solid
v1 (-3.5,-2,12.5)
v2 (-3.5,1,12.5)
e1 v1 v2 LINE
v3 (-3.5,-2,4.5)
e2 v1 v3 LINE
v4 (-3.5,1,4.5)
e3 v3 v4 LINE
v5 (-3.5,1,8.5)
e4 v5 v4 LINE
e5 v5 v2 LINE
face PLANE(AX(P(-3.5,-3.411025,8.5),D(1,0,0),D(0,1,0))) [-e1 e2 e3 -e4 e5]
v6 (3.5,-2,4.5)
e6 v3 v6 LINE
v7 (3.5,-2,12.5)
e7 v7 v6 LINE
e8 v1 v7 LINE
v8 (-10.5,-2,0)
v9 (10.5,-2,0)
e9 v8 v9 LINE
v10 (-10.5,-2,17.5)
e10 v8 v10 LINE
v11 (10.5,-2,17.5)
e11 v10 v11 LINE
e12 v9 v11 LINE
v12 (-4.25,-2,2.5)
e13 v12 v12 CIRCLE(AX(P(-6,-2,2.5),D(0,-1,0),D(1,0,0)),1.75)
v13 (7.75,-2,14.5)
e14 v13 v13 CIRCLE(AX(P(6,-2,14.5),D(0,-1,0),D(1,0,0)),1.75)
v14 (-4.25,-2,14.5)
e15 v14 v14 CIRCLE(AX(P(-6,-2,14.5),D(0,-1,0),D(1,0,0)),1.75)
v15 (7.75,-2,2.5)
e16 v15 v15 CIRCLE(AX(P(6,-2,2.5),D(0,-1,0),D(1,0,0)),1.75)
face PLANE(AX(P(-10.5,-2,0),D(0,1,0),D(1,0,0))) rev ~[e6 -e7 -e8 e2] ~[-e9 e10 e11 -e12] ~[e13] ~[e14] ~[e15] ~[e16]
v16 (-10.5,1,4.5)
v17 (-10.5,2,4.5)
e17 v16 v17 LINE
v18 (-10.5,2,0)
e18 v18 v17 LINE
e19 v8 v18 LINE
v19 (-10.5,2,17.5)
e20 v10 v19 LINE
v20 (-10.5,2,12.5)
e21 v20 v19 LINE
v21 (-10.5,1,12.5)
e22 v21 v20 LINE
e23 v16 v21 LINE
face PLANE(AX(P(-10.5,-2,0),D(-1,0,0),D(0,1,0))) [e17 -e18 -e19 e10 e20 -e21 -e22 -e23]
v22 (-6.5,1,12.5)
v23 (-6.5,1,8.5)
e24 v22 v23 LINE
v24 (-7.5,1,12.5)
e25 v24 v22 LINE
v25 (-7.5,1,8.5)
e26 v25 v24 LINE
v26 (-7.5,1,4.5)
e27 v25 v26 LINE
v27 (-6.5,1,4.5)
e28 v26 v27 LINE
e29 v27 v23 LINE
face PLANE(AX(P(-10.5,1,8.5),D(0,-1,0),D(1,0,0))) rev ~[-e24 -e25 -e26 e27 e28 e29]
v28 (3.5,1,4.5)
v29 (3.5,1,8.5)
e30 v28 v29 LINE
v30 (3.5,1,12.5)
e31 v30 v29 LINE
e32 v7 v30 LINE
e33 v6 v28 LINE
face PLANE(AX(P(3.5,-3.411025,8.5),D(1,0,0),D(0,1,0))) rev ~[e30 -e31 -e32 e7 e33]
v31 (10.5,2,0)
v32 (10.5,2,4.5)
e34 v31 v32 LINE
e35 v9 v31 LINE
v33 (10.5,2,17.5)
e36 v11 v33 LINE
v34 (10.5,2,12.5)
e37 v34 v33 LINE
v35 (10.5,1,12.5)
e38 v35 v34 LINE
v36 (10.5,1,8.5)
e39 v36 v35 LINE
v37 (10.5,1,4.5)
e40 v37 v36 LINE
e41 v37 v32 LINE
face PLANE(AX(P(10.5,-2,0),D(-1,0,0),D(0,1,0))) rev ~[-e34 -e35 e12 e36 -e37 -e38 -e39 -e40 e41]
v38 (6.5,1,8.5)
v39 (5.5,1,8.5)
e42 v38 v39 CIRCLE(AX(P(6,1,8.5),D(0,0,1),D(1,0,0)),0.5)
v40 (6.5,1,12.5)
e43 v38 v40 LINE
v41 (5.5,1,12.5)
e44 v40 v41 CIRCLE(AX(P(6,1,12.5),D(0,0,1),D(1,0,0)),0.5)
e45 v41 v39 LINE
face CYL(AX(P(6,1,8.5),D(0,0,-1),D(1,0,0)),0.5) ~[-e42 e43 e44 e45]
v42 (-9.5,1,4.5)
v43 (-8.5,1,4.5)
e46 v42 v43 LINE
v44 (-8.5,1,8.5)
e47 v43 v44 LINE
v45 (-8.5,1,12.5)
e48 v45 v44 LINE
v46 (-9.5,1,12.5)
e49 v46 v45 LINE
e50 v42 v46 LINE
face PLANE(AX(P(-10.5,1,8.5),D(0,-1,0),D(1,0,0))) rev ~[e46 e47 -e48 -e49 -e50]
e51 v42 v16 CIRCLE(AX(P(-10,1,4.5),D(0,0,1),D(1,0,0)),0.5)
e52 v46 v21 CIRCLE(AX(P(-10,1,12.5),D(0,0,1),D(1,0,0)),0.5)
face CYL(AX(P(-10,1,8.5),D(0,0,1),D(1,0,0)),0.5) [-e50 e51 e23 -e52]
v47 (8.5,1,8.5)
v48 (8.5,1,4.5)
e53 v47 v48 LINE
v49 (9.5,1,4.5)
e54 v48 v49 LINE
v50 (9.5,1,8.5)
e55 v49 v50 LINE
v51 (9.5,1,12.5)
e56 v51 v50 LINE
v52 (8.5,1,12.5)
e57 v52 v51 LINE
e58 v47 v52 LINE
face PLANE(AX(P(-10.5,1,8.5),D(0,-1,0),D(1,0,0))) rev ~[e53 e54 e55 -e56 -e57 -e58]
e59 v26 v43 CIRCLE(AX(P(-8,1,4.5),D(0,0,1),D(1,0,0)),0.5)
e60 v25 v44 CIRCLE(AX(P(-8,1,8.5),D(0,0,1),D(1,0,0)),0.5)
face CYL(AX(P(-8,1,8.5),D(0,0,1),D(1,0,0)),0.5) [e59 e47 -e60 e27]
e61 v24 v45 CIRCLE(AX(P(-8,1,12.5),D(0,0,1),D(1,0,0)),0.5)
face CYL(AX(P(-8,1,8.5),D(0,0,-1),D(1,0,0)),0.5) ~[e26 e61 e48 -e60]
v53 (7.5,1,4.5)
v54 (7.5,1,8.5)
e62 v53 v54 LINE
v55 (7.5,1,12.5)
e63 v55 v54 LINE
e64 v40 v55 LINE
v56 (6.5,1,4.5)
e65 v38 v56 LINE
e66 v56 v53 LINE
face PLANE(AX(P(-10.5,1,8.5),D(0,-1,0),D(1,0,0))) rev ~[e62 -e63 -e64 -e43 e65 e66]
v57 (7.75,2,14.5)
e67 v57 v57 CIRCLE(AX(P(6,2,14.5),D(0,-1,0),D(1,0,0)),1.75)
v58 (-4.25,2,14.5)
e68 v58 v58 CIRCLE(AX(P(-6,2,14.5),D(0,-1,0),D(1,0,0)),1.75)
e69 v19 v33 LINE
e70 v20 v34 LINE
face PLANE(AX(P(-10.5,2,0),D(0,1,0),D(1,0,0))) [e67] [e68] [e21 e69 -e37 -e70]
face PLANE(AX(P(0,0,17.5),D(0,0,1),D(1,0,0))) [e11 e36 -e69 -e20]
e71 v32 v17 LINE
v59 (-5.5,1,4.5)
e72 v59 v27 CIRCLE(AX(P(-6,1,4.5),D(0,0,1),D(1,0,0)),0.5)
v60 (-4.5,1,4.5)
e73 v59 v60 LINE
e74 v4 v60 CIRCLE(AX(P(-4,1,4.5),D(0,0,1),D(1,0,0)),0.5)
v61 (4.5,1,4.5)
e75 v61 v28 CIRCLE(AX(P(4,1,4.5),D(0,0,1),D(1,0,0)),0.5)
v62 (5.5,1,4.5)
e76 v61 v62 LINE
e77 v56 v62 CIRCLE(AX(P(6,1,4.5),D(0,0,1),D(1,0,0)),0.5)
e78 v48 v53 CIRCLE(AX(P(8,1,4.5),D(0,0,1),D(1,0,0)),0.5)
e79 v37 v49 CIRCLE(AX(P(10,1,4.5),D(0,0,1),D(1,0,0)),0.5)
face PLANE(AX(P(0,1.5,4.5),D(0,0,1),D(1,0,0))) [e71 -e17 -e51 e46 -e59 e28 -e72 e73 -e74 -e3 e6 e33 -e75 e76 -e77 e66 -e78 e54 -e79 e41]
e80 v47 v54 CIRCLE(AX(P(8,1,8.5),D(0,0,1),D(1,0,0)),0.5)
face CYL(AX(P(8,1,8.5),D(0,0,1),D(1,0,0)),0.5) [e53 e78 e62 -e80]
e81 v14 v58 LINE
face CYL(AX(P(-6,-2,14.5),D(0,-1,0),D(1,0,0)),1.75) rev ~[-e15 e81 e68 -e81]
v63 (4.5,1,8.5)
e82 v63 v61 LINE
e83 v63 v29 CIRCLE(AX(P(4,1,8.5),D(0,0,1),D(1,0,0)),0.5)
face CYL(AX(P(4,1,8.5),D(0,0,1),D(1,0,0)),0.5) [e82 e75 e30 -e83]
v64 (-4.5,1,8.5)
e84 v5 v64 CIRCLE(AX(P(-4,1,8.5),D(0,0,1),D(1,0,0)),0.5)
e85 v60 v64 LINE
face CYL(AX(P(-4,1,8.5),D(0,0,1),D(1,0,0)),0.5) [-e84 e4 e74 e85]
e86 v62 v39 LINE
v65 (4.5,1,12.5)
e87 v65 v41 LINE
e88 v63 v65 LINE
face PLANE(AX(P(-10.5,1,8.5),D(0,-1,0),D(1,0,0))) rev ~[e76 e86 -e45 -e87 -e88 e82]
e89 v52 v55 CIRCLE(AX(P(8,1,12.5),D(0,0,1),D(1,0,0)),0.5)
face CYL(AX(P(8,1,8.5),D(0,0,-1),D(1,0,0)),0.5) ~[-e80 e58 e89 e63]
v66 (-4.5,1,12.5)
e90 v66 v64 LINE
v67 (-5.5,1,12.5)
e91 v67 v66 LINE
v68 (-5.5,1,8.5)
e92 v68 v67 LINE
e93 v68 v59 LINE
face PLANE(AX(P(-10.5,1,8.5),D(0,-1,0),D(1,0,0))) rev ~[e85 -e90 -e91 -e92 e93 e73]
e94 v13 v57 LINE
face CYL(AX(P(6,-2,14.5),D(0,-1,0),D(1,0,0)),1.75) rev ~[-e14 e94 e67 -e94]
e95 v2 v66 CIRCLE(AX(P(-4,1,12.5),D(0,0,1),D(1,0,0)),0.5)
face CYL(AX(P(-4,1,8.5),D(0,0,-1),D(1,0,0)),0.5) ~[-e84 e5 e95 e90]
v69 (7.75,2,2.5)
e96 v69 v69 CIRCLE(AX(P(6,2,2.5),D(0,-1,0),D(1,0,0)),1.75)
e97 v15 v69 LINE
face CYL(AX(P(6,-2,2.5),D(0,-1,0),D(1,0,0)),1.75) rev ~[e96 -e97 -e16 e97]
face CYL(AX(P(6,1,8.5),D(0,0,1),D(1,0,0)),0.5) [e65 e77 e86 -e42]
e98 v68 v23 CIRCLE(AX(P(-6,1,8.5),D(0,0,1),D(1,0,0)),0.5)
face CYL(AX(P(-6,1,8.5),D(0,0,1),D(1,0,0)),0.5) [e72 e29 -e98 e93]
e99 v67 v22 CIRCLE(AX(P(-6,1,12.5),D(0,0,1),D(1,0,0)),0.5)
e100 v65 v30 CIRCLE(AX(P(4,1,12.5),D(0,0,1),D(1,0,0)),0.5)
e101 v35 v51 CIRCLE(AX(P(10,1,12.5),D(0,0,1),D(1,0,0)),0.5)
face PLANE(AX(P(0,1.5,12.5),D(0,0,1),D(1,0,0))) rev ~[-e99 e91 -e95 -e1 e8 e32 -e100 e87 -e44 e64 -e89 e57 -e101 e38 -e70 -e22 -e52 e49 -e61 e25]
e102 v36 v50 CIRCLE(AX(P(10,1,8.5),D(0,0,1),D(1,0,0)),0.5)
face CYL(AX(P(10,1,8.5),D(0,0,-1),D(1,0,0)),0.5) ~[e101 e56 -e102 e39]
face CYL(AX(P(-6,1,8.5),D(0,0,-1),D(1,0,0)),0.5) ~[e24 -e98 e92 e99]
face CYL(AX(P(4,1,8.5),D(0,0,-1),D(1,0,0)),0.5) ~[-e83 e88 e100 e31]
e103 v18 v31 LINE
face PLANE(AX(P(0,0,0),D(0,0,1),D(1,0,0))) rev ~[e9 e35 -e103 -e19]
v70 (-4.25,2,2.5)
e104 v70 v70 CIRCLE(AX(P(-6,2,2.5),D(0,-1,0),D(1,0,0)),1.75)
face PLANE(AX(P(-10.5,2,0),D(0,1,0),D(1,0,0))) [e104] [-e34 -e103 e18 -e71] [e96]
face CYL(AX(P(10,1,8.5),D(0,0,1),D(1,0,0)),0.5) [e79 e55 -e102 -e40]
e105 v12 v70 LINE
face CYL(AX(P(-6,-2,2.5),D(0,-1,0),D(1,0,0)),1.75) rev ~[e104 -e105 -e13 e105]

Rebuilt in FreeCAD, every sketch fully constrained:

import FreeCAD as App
import Part
import Sketcher

V = App.Vector


def add_polygon(sketch, points):
    """Adds a closed chain of lines whose ends are joined by coincident constraints."""
    first, n = sketch.GeometryCount, len(points)
    for a, b in zip(points, points[1:] + points[:1]):
        sketch.addGeometry(Part.LineSegment(App.Vector(*a, 0), App.Vector(*b, 0)), False)
    for i in range(n):
        sketch.addConstraint(Sketcher.Constraint("Coincident", first + i, 2, first + (i + 1) % n, 1))

doc = App.newDocument("Part")
params = doc.addObject("Spreadsheet::Sheet", "Params")
for row, (alias, value) in enumerate([
    ("sketch1_width", "21 mm"),
    ("sketch1_height", "4 mm"),
    ("pad1_length", "17.5 mm"),
    ("sketch2_diameter", "3.5 mm"),
    ("sketch3_width", "21 mm"),
    ("sketch3_height", "1 mm"),
    ("pocket2_length", "8 mm"),
    ("sketch4_diameter", "1 mm"),
    ("pad2_length", "8 mm"),
    ("sketch5_width", "7 mm"),
    ("pocket3_length", "8 mm"),
], start=1):
    params.set(f"A{row}", alias)
    params.set(f"B{row}", "=" + value)
    params.setAlias(f"B{row}", alias)

body = doc.addObject("PartDesign::Body", "Body")

# Sketch on XY plane
sketch1 = body.newObject("Sketcher::SketchObject", "Sketch")
sketch1.AttachmentSupport = (doc.getObject("XY_Plane"), [""])
sketch1.MapMode = "FlatFace"
add_polygon(sketch1, [(-10.5, 2), (-10.5, -2), (10.5, -2), (10.5, 2)])  # lines 0-3
sketch1.addConstraint(Sketcher.Constraint("Vertical", 0))
sketch1.addConstraint(Sketcher.Constraint("Horizontal", 1))
sketch1.addConstraint(Sketcher.Constraint("Vertical", 2))
sketch1.addConstraint(Sketcher.Constraint("Horizontal", 3))
sketch1.addConstraint(Sketcher.Constraint("Symmetric", 0, 2, 2, 2, -1, 1))
sketch1.addConstraint(Sketcher.Constraint("DistanceX", 1, 1, 1, 2, 21.0))
sketch1.addConstraint(Sketcher.Constraint("DistanceY", 0, 2, 0, 1, 4.0))
sketch1.setExpression("Constraints[9]", "Params.sketch1_width")
sketch1.setExpression("Constraints[10]", "Params.sketch1_height")
pad1 = body.newObject("PartDesign::Pad", "Pad")
pad1.Profile = sketch1
pad1.setExpression("Length", "Params.pad1_length")

# Sketch on XZ plane
sketch2 = body.newObject("Sketcher::SketchObject", "Sketch001")
sketch2.AttachmentSupport = (doc.getObject("XZ_Plane"), [""])
sketch2.MapMode = "FlatFace"
sketch2.AttachmentOffset = App.Placement(V(0, 0, 2), App.Rotation())
sketch2.addGeometry(Part.Circle(V(-6, 14.5, 0), V(0, 0, 1), 1.75), False)
sketch2.addGeometry(Part.Circle(V(6, 14.5, 0), V(0, 0, 1), 1.75), False)
sketch2.addGeometry(Part.Circle(V(6, 2.5, 0), V(0, 0, 1), 1.75), False)
sketch2.addGeometry(Part.Circle(V(-6, 2.5, 0), V(0, 0, 1), 1.75), False)
sketch2.addConstraint(Sketcher.Constraint("Equal", 0, 1))
sketch2.addConstraint(Sketcher.Constraint("Equal", 1, 2))
sketch2.addConstraint(Sketcher.Constraint("Equal", 2, 3))
sketch2.addConstraint(Sketcher.Constraint("Symmetric", 0, 3, 1, 3, -2))
sketch2.addConstraint(Sketcher.Constraint("Symmetric", 2, 3, 3, 3, -2))
sketch2.addConstraint(Sketcher.Constraint("Vertical", 1, 3, 2, 3))
sketch2.addConstraint(Sketcher.Constraint("Diameter", 0, 3.5))
sketch2.addConstraint(Sketcher.Constraint("DistanceX", 0, 3, -1, 1, 6.0))
sketch2.addConstraint(Sketcher.Constraint("DistanceY", 2, 3, 1, 3, 12.0))
sketch2.addConstraint(Sketcher.Constraint("DistanceY", -1, 1, 0, 3, 14.5))
sketch2.setExpression("Constraints[6]", "Params.sketch2_diameter")
pocket1 = body.newObject("PartDesign::Pocket", "Pocket")
pocket1.Profile = sketch2
pocket1.Type = "ThroughAll"

# Sketch on XY plane
sketch3 = body.newObject("Sketcher::SketchObject", "Sketch002")
sketch3.AttachmentSupport = (doc.getObject("XY_Plane"), [""])
sketch3.MapMode = "FlatFace"
sketch3.AttachmentOffset = App.Placement(V(0, 0, 8.5), App.Rotation())
add_polygon(sketch3, [(-10.5, 2), (-10.5, 1), (10.5, 1), (10.5, 2)])  # lines 0-3
sketch3.addConstraint(Sketcher.Constraint("Vertical", 0))
sketch3.addConstraint(Sketcher.Constraint("Horizontal", 1))
sketch3.addConstraint(Sketcher.Constraint("Vertical", 2))
sketch3.addConstraint(Sketcher.Constraint("Horizontal", 3))
sketch3.addConstraint(Sketcher.Constraint("DistanceX", 1, 1, 1, 2, 21.0))
sketch3.addConstraint(Sketcher.Constraint("DistanceY", 0, 2, 0, 1, 1.0))
sketch3.addConstraint(Sketcher.Constraint("DistanceY", -1, 1, 0, 2, 1.0))
sketch3.addConstraint(Sketcher.Constraint("DistanceX", 0, 2, -1, 1, 10.5))
sketch3.setExpression("Constraints[8]", "Params.sketch3_width")
sketch3.setExpression("Constraints[9]", "Params.sketch3_height")
pocket2 = body.newObject("PartDesign::Pocket", "Pocket001")
pocket2.Profile = sketch3
pocket2.setExpression("Length", "Params.pocket2_length")
pocket2.Midplane = True

# Sketch on XY plane
sketch4 = body.newObject("Sketcher::SketchObject", "Sketch003")
sketch4.AttachmentSupport = (doc.getObject("XY_Plane"), [""])
sketch4.MapMode = "FlatFace"
sketch4.AttachmentOffset = App.Placement(V(0, 0, 8.5), App.Rotation())
sketch4.addGeometry(Part.Circle(V(10, 1, 0), V(0, 0, 1), 0.5), False)
sketch4.addGeometry(Part.Circle(V(8, 1, 0), V(0, 0, 1), 0.5), False)
sketch4.addGeometry(Part.Circle(V(6, 1, 0), V(0, 0, 1), 0.5), False)
sketch4.addGeometry(Part.Circle(V(4, 1, 0), V(0, 0, 1), 0.5), False)
sketch4.addGeometry(Part.Circle(V(2, 1, 0), V(0, 0, 1), 0.5), False)
sketch4.addGeometry(Part.Circle(V(0, 1, 0), V(0, 0, 1), 0.5), False)
sketch4.addGeometry(Part.Circle(V(-2, 1, 0), V(0, 0, 1), 0.5), False)
sketch4.addGeometry(Part.Circle(V(-4, 1, 0), V(0, 0, 1), 0.5), False)
sketch4.addGeometry(Part.Circle(V(-6, 1, 0), V(0, 0, 1), 0.5), False)
sketch4.addGeometry(Part.Circle(V(-8, 1, 0), V(0, 0, 1), 0.5), False)
sketch4.addGeometry(Part.Circle(V(-10, 1, 0), V(0, 0, 1), 0.5), False)
sketch4.addConstraint(Sketcher.Constraint("Equal", 0, 1))
sketch4.addConstraint(Sketcher.Constraint("Equal", 1, 2))
sketch4.addConstraint(Sketcher.Constraint("Equal", 2, 3))
sketch4.addConstraint(Sketcher.Constraint("Equal", 3, 4))
sketch4.addConstraint(Sketcher.Constraint("Equal", 4, 5))
sketch4.addConstraint(Sketcher.Constraint("Equal", 5, 6))
sketch4.addConstraint(Sketcher.Constraint("Equal", 6, 7))
sketch4.addConstraint(Sketcher.Constraint("Equal", 7, 8))
sketch4.addConstraint(Sketcher.Constraint("Equal", 8, 9))
sketch4.addConstraint(Sketcher.Constraint("Equal", 9, 10))
sketch4.addConstraint(Sketcher.Constraint("Symmetric", 4, 3, 6, 3, -2))
sketch4.addConstraint(Sketcher.Constraint("Symmetric", 3, 3, 7, 3, -2))
sketch4.addConstraint(Sketcher.Constraint("Symmetric", 2, 3, 8, 3, -2))
sketch4.addConstraint(Sketcher.Constraint("Symmetric", 1, 3, 9, 3, -2))
sketch4.addConstraint(Sketcher.Constraint("Symmetric", 0, 3, 10, 3, -2))
sketch4.addConstraint(Sketcher.Constraint("PointOnObject", 5, 3, -2))
sketch4.addConstraint(Sketcher.Constraint("Horizontal", 0, 3, 1, 3))
sketch4.addConstraint(Sketcher.Constraint("Horizontal", 1, 3, 2, 3))
sketch4.addConstraint(Sketcher.Constraint("Horizontal", 2, 3, 3, 3))
sketch4.addConstraint(Sketcher.Constraint("Horizontal", 3, 3, 4, 3))
sketch4.addConstraint(Sketcher.Constraint("Horizontal", 4, 3, 5, 3))
sketch4.addConstraint(Sketcher.Constraint("Diameter", 0, 1.0))
sketch4.addConstraint(Sketcher.Constraint("DistanceX", -1, 1, 0, 3, 10.0))
sketch4.addConstraint(Sketcher.Constraint("DistanceY", -1, 1, 0, 3, 1.0))
sketch4.addConstraint(Sketcher.Constraint("DistanceX", -1, 1, 1, 3, 8.0))
sketch4.addConstraint(Sketcher.Constraint("DistanceX", -1, 1, 2, 3, 6.0))
sketch4.addConstraint(Sketcher.Constraint("DistanceX", -1, 1, 3, 3, 4.0))
sketch4.addConstraint(Sketcher.Constraint("DistanceX", -1, 1, 4, 3, 2.0))
sketch4.setExpression("Constraints[21]", "Params.sketch4_diameter")
pad2 = body.newObject("PartDesign::Pad", "Pad001")
pad2.Profile = sketch4
pad2.setExpression("Length", "Params.pad2_length")
pad2.Midplane = True

# Sketch on XY plane
sketch5 = body.newObject("Sketcher::SketchObject", "Sketch004")
sketch5.AttachmentSupport = (doc.getObject("XY_Plane"), [""])
sketch5.MapMode = "FlatFace"
sketch5.AttachmentOffset = App.Placement(V(0, 0, 8.5), App.Rotation())
add_polygon(sketch5, [(-3.5, 3.411025), (-3.5, -3.411025), (3.5, -3.411025), (3.5, 3.411025)])  # lines 0-3
sketch5.addConstraint(Sketcher.Constraint("Vertical", 0))
sketch5.addConstraint(Sketcher.Constraint("Horizontal", 1))
sketch5.addConstraint(Sketcher.Constraint("Vertical", 2))
sketch5.addConstraint(Sketcher.Constraint("Horizontal", 3))
sketch5.addConstraint(Sketcher.Constraint("Symmetric", 0, 2, 2, 2, -1, 1))
sketch5.addConstraint(Sketcher.Constraint("DistanceX", 1, 1, 1, 2, 7.0))
sketch5.addConstraint(Sketcher.Constraint("DistanceY", 0, 2, 0, 1, 6.82205))
sketch5.setExpression("Constraints[9]", "Params.sketch5_width")
pocket3 = body.newObject("PartDesign::Pocket", "Pocket002")
pocket3.Profile = sketch5
pocket3.setExpression("Length", "Params.pocket3_length")
pocket3.Midplane = True

doc.recompute()
